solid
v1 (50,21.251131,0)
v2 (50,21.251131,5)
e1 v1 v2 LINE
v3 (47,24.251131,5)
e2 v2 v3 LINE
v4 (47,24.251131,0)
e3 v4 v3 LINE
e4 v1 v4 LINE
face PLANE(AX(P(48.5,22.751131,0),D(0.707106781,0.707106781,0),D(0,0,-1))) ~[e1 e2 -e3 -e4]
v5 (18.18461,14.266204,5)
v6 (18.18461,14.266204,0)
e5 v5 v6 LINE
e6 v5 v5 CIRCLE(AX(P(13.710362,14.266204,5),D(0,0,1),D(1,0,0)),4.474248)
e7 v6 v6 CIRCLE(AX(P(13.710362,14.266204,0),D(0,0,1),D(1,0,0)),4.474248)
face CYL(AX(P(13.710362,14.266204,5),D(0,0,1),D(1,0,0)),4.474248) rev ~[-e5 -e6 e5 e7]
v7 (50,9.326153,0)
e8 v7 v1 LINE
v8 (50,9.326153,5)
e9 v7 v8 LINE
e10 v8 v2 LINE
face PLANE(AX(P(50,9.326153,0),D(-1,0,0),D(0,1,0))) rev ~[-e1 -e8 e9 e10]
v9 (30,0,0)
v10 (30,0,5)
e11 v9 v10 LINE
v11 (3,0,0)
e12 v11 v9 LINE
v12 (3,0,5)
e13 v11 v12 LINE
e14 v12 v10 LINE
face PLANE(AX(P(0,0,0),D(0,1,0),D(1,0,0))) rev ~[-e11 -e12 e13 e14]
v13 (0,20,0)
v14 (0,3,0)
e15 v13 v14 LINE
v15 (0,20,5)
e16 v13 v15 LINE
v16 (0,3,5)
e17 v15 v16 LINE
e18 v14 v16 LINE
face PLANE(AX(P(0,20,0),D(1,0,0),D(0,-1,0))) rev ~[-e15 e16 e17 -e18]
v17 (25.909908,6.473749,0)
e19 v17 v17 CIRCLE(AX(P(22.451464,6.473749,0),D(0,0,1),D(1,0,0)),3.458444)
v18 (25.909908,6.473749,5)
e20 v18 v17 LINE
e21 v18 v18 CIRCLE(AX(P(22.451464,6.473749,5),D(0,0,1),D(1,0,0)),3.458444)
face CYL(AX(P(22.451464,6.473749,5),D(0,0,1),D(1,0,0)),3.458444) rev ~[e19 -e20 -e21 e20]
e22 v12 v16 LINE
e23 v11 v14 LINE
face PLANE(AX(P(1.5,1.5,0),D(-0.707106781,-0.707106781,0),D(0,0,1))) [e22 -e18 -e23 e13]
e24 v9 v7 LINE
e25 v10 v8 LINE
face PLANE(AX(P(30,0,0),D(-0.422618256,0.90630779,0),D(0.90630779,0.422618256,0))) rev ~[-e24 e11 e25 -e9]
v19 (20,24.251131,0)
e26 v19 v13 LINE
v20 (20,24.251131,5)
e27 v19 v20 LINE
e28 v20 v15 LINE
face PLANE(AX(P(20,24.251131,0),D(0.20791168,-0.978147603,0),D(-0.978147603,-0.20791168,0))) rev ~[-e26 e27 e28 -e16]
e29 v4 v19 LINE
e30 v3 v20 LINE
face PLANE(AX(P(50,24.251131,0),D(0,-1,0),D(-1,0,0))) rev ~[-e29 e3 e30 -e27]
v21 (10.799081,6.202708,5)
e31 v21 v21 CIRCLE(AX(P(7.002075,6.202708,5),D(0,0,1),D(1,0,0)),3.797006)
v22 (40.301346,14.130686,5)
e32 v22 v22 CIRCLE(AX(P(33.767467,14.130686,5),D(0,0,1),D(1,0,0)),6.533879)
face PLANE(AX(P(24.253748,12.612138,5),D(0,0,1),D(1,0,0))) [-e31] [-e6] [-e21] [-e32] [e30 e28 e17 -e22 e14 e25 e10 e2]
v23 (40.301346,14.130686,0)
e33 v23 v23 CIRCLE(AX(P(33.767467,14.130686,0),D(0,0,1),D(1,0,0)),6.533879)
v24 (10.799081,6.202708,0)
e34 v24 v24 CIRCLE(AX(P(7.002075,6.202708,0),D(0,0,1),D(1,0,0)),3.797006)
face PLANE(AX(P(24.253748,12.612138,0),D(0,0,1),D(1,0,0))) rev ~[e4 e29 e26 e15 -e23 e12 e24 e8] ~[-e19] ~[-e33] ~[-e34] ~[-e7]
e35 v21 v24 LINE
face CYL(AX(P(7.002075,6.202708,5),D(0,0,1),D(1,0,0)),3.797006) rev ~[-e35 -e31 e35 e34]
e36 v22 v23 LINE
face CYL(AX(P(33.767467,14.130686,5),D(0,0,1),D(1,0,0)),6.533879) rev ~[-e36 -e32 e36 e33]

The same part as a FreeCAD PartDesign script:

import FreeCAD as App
import Part
import Sketcher

V = App.Vector
Q = App.Units.Quantity


def edges_at(feature, points):
    """Names of the edges that pass closest to the given points."""
    edges = feature.Shape.Edges
    near = lambda p: min(range(len(edges)), key=lambda i: edges[i].distToShape(Part.Vertex(*p))[0])
    return sorted({f"Edge{near(p) + 1}" for p in points})


def add_polygon(sketch, points):
    """Adds a closed chain of lines whose ends are joined by coincident constraints."""
    first, n = sketch.GeometryCount, len(points)
    for a, b in zip(points, points[1:] + points[:1]):
        sketch.addGeometry(Part.LineSegment(App.Vector(*a, 0), App.Vector(*b, 0)), False)
    for i in range(n):
        sketch.addConstraint(Sketcher.Constraint("Coincident", first + i, 2, first + (i + 1) % n, 1))

doc = App.newDocument("Part")
params = doc.addObject("Spreadsheet::Sheet", "Params")
for row, (alias, value) in enumerate([
    ("sketch1_width", "30 mm"),
    ("sketch1_height", "20 mm"),
    ("pad1_length", "5 mm"),
    ("chamfer_size", "3 mm"),
    ("chamfer2_size", "3 mm"),
], start=1):
    params.set(f"A{row}", alias)
    params.set(f"B{row}", "=" + value)
    params.setAlias(f"B{row}", alias)

body = doc.addObject("PartDesign::Body", "Body")

sketch1 = body.newObject("Sketcher::SketchObject", "Sketch")
sketch1.AttachmentSupport = (doc.getObject("XY_Plane"), [""])
sketch1.MapMode = "FlatFace"
add_polygon(sketch1, [(0, 0), (30, 0), (50, 9.326153), (50, 24.251131), (20, 24.251131), (0, 20)])
sketch1.addConstraint([
    Sketcher.Constraint("Horizontal", 0),
    Sketcher.Constraint("Vertical", 2),
    Sketcher.Constraint("Horizontal", 3),
    Sketcher.Constraint("Vertical", 5),
    Sketcher.Constraint("Coincident", 5, 2, -1, 1),
    Sketcher.Constraint("Equal", 0, 3),
    Sketcher.Constraint("DistanceX", 0, 1, 0, 2, 30.0),
    Sketcher.Constraint("DistanceY", 5, 2, 5, 1, 20.0),
    Sketcher.Constraint("Angle", 1, Q("25 deg")),
    Sketcher.Constraint("Angle", 4, Q("-168.000001 deg")),
    Sketcher.Constraint("DistanceX", -1, 1, 1, 2, 50.0),
])
sketch1.setExpression("Constraints[12]", "Params.sketch1_width")
sketch1.setExpression("Constraints[13]", "Params.sketch1_height")
pad1 = body.newObject("PartDesign::Pad", "Pad")
pad1.Profile = sketch1
pad1.setExpression("Length", "Params.pad1_length")
doc.recompute()

chamfer = body.newObject("PartDesign::Chamfer", "Chamfer")
chamfer.Base = (pad1, edges_at(pad1, [(0, 0, 2.5)]))
chamfer.setExpression("Size", "Params.chamfer_size")
doc.recompute()

chamfer2 = body.newObject("PartDesign::Chamfer", "Chamfer001")
chamfer2.Base = (chamfer, edges_at(chamfer, [(50, 24.251, 2.5)]))
chamfer2.setExpression("Size", "Params.chamfer2_size")

sketch2 = body.newObject("Sketcher::SketchObject", "Sketch001")
sketch2.AttachmentSupport = (doc.getObject("XY_Plane"), [""])
sketch2.MapMode = "FlatFace"
sketch2.AttachmentOffset = App.Placement(V(0, 0, 5), App.Rotation())
sketch2.addGeometry([
    Part.Circle(V(13.710362, 14.266204, 0), V(0, 0, 1), 4.474248),
    Part.Circle(V(33.767467, 14.130686, 0), V(0, 0, 1), 6.533879),
    Part.Circle(V(22.451464, 6.473749, 0), V(0, 0, 1), 3.458444),
    Part.Circle(V(7.002075, 6.202708, 0), V(0, 0, 1), 3.797006),
], False)
sketch2.addConstraint([
    Sketcher.Constraint("Diameter", 0, 8.948496),
    Sketcher.Constraint("Diameter", 1, 13.067758),
    Sketcher.Constraint("Diameter", 2, 6.916888),
    Sketcher.Constraint("Diameter", 3, 7.594012),
    Sketcher.Constraint("DistanceY", -1, 1, 2, 3, 6.473749),
    Sketcher.Constraint("DistanceY", -1, 1, 3, 3, 6.202708),
    Sketcher.Constraint("DistanceX", 3, 3, 2, 3, 15.449389),
    Sketcher.Constraint("DistanceY", 3, 3, 1, 3, 7.927978),
    Sketcher.Constraint("DistanceX", -1, 1, 0, 3, 13.710362),
    Sketcher.Constraint("DistanceY", -1, 1, 0, 3, 14.266204),
    Sketcher.Constraint("DistanceX", -1, 1, 1, 3, 33.767467),
    Sketcher.Constraint("DistanceX", -1, 1, 2, 3, 22.451464),
])
pocket1 = body.newObject("PartDesign::Pocket", "Pocket")
pocket1.Profile = sketch2
pocket1.Type = "ThroughAll"

doc.recompute()
